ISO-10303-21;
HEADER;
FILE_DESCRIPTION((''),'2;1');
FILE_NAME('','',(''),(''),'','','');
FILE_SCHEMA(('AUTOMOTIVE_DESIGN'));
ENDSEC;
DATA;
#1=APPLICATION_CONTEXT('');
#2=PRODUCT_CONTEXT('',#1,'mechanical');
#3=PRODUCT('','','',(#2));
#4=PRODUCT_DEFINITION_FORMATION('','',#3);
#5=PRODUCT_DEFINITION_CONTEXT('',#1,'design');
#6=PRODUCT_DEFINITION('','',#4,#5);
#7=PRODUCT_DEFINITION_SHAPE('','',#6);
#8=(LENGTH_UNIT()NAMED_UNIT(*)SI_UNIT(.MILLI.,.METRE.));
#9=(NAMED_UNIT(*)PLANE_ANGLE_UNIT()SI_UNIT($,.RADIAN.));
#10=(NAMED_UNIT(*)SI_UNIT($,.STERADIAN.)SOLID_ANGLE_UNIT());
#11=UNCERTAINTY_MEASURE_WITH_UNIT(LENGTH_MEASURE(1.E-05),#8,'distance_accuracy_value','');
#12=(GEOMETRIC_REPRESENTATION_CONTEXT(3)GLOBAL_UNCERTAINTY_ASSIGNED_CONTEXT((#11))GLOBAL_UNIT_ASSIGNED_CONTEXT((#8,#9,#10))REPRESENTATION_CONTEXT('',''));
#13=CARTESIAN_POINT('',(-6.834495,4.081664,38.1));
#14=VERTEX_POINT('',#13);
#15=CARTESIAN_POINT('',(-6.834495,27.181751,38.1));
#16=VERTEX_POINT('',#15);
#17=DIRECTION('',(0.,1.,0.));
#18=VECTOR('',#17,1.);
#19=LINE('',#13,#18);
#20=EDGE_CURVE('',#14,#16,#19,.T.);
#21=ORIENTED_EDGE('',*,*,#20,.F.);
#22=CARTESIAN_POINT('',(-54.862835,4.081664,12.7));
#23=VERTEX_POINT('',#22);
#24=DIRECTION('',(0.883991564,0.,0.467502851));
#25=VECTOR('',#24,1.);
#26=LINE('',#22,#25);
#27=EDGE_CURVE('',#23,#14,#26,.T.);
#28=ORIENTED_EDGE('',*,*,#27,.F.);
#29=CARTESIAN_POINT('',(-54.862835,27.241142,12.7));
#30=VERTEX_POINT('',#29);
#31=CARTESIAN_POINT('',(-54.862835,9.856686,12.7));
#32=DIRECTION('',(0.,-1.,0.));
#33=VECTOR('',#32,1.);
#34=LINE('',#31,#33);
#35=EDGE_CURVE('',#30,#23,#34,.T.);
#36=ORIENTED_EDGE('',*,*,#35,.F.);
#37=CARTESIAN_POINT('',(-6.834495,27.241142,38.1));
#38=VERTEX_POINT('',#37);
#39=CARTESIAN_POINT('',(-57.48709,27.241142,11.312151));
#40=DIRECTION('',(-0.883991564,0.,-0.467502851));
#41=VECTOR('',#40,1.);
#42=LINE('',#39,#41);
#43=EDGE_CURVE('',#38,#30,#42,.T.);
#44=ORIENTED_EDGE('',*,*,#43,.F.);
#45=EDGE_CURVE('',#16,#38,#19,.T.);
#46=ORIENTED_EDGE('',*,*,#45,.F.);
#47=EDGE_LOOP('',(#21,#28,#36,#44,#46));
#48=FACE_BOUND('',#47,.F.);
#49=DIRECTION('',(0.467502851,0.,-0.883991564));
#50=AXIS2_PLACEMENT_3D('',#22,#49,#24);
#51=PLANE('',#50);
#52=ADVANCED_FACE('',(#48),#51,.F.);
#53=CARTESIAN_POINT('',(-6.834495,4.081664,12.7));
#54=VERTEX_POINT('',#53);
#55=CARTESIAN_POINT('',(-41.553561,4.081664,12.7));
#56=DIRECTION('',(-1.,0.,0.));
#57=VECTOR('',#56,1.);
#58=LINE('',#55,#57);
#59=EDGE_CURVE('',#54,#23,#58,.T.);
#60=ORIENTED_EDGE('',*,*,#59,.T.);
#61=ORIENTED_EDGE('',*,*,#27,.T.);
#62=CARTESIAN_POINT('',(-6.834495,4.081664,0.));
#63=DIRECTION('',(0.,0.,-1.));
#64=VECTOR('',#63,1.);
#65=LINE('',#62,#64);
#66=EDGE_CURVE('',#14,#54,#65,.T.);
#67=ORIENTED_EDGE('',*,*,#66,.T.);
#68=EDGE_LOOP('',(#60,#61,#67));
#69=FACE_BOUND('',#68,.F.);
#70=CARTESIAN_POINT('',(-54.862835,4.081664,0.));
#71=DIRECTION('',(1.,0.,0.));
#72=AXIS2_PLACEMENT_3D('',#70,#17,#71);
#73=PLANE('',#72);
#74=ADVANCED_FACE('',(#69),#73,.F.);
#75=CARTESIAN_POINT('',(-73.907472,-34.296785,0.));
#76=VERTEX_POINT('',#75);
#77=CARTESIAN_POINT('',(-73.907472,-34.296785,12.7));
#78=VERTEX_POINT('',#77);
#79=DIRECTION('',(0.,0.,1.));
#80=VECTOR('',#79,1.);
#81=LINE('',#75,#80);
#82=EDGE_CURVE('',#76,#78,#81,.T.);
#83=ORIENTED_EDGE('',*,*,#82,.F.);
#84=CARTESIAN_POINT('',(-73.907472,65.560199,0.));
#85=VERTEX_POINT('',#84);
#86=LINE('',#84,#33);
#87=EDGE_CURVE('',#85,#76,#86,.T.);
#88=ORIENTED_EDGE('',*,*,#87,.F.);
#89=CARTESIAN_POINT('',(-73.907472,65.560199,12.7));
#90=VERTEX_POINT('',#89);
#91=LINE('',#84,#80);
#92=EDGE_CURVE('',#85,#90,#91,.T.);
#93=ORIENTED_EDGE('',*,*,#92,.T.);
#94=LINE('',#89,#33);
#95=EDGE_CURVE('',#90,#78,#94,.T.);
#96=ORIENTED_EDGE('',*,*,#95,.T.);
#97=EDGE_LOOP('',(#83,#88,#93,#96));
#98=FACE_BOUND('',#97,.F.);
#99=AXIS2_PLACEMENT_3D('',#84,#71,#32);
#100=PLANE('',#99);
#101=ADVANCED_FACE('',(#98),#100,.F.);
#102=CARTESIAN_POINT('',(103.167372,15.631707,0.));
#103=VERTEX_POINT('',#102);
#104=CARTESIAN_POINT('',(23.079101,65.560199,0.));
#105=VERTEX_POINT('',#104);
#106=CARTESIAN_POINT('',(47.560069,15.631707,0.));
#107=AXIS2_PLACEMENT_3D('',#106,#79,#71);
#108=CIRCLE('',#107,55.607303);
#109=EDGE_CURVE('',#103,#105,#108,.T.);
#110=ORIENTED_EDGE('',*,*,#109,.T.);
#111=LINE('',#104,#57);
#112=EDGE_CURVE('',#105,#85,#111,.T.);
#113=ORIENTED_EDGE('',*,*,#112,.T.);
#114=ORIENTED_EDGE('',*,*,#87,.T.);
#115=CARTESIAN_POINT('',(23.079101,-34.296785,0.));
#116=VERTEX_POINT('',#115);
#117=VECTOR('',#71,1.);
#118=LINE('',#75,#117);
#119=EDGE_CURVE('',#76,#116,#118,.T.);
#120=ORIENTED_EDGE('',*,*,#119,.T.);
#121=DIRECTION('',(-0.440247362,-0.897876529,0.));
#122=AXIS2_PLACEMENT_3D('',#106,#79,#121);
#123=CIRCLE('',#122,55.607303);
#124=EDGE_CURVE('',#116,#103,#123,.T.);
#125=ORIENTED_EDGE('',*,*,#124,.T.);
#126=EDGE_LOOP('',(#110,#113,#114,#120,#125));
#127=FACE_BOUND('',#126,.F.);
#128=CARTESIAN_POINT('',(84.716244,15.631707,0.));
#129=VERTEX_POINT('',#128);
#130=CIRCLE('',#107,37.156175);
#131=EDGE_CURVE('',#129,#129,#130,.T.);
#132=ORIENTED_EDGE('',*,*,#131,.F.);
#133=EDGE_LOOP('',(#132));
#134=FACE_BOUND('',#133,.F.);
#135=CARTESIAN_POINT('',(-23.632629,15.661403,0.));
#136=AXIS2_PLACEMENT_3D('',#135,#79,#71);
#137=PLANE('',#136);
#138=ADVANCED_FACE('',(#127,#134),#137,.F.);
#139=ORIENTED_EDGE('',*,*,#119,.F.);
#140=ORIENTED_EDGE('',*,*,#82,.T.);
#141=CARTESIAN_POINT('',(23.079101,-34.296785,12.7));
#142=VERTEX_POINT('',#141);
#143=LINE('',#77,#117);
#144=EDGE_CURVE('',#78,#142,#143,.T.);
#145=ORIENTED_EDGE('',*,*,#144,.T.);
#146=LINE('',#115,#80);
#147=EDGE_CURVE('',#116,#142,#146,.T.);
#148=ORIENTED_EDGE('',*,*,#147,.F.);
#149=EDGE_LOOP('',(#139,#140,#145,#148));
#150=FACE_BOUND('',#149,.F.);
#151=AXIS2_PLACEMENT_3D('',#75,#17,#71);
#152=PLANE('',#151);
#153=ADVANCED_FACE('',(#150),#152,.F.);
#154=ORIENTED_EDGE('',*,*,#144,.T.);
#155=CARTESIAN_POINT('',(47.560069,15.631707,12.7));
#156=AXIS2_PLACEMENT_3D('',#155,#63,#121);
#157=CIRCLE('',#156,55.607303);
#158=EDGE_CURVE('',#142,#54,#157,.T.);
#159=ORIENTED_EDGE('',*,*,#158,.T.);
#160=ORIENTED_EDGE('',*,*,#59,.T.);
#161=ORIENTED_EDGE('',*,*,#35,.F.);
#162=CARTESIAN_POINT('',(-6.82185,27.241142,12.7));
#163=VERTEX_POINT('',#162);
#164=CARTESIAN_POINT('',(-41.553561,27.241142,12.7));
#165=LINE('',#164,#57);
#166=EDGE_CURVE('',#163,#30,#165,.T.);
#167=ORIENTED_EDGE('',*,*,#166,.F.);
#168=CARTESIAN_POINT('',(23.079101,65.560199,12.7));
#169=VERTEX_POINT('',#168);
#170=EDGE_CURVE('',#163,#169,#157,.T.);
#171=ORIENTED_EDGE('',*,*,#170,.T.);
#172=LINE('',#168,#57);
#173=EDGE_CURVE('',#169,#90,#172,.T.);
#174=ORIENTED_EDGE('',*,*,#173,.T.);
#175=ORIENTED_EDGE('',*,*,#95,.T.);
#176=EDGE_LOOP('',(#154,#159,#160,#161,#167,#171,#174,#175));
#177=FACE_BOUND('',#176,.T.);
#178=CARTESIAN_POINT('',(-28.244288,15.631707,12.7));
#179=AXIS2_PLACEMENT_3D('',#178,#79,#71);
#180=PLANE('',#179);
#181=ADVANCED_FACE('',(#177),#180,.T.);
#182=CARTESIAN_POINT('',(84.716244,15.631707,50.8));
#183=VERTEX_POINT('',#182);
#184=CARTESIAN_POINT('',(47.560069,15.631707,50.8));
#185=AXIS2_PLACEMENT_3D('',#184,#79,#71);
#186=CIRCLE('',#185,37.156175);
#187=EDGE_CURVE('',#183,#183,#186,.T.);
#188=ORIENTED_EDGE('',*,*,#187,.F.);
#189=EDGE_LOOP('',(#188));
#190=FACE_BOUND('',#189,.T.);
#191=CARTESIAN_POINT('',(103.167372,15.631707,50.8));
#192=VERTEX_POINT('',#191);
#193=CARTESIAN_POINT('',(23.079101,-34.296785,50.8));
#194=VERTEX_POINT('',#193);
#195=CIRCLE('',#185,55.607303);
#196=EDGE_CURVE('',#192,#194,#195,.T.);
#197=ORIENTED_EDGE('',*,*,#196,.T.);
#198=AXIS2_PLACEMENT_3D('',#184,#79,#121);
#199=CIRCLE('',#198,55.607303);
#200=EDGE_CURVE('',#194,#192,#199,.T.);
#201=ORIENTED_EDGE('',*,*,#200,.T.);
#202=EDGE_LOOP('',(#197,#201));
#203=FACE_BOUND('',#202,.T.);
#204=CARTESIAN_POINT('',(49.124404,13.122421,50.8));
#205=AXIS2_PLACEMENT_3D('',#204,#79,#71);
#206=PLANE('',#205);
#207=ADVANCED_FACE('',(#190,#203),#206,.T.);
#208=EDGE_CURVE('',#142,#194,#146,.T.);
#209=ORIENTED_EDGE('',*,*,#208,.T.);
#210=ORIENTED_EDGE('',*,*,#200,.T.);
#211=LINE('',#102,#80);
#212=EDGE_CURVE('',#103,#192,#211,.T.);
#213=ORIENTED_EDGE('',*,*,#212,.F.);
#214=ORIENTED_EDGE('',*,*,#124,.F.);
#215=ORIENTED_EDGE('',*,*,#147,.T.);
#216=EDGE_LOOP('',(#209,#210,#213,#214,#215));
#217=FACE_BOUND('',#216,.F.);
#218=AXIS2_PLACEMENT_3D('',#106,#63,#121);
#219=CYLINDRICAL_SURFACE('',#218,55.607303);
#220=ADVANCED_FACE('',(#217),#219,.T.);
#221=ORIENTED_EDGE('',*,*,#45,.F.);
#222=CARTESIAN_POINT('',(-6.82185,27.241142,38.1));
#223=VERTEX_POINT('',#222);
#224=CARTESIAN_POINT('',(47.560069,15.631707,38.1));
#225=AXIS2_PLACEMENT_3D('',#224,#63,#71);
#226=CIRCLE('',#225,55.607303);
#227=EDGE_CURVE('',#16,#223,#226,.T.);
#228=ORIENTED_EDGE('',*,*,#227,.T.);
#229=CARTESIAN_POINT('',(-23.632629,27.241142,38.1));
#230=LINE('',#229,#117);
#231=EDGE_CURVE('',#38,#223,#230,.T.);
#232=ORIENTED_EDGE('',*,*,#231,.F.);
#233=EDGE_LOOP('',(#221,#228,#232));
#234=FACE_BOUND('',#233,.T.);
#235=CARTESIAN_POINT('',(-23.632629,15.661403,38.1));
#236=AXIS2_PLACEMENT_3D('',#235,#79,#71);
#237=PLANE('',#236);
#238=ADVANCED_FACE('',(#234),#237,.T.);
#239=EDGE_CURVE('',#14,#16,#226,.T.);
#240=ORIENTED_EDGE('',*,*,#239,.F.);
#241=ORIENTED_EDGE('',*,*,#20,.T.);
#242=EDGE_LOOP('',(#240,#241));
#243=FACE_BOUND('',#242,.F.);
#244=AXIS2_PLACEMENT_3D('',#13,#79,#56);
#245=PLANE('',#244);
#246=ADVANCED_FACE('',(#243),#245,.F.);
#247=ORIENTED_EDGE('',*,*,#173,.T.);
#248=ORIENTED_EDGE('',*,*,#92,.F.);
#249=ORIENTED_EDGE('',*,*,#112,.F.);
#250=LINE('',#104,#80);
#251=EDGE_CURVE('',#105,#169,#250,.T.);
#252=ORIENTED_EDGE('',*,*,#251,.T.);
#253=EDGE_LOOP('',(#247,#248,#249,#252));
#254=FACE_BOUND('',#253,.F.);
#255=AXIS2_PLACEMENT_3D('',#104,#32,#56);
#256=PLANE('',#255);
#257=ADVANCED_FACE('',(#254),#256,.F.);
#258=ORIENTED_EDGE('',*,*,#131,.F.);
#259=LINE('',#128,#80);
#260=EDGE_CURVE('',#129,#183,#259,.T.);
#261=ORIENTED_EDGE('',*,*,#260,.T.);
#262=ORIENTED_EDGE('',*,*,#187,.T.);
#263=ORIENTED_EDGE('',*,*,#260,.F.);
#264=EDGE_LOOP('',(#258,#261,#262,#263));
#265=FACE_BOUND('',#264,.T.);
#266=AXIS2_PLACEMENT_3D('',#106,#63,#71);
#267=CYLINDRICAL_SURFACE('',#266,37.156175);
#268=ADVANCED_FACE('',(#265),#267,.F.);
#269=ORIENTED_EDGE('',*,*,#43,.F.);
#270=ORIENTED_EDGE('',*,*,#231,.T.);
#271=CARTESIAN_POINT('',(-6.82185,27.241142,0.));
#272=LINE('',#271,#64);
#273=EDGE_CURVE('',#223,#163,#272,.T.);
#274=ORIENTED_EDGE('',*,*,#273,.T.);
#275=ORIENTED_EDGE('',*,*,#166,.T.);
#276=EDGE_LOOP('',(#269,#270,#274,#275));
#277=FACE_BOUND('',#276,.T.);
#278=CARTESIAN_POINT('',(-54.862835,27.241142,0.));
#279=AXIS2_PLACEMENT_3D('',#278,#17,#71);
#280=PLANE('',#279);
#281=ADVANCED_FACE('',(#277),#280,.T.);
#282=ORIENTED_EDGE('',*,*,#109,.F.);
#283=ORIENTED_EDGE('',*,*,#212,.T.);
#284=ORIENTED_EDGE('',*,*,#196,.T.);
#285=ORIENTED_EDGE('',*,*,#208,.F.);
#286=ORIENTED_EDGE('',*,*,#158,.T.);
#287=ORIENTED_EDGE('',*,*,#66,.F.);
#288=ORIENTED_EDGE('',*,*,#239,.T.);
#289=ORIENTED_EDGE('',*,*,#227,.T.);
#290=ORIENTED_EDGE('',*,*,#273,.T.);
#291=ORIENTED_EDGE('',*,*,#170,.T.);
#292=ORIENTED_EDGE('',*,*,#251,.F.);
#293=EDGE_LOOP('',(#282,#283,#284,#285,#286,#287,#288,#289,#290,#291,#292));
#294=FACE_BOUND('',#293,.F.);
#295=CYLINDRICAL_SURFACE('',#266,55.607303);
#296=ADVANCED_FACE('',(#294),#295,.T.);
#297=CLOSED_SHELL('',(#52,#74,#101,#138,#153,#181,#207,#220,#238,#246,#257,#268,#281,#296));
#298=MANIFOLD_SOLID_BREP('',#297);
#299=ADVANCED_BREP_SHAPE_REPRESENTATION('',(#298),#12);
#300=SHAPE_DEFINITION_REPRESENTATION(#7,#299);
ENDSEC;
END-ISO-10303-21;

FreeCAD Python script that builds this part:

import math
import FreeCAD as App
import Part
import Sketcher
from FreeCAD import Vector
Q = App.Units.Quantity

doc = App.newDocument("Part")
params = doc.addObject("Spreadsheet::Sheet", "Params")
for row, (alias, value) in enumerate([
    ("pad1_length", "0.5 in"),
    ("pad2_length", "2 in"),
    ("pad3_length", "1.5 in"),
    ("sketch4_height", "1 in"),
    ("pocket1_length", "1 in"),
], start=1):
    params.set(f"A{row}", alias)
    params.set(f"B{row}", "=" + value)
    params.setAlias(f"B{row}", alias)

body = doc.addObject("PartDesign::Body", "Body")

# Sketch on XY plane
sketch1 = body.newObject("Sketcher::SketchObject", "Sketch")
sketch1.AttachmentSupport = (doc.getObject("XY_Plane"), [""])
sketch1.MapMode = "FlatFace"
sketch1.addGeometry([
    Part.LineSegment(Vector(23, 66, 0), Vector(-74, 66, 0)),
    Part.LineSegment(Vector(-74, 66, 0), Vector(-74, -34, 0)),
    Part.LineSegment(Vector(-74, -34, 0), Vector(23, -34, 0)),
    Part.ArcOfCircle(Part.Circle(Vector(48, 16, 0), Vector(0, 0, 1), 56), math.radians(116), math.radians(244)),
], False)
sketch1.addConstraint([
    Sketcher.Constraint("Coincident", 0, 2, 1, 1),
    Sketcher.Constraint("Coincident", 1, 2, 2, 1),
    Sketcher.Constraint("Coincident", 2, 2, 3, 2),
    Sketcher.Constraint("Coincident", 3, 1, 0, 1),
    Sketcher.Constraint("Horizontal", 0),
    Sketcher.Constraint("Vertical", 1),
    Sketcher.Constraint("Horizontal", 2),
    Sketcher.Constraint("Vertical", 2, 2, 3, 1),
    Sketcher.Constraint("Radius", 3, Q("55.607303 mm")),
    Sketcher.Constraint("DistanceY", -1, 1, 0, 2, Q("65.560199 mm")),
    Sketcher.Constraint("DistanceX", -1, 1, 2, 2, Q("23.079101 mm")),
    Sketcher.Constraint("DistanceX", 0, 2, 0, 1, Q("96.986573 mm")),
    Sketcher.Constraint("DistanceY", 1, 2, 1, 1, Q("99.856984 mm")),
])
pad1 = body.newObject("PartDesign::Pad", "Pad")
pad1.Profile = sketch1
pad1.setExpression("Length", "Params.pad1_length")

# Sketch on XY plane
sketch2 = body.newObject("Sketcher::SketchObject", "Sketch001")
sketch2.AttachmentSupport = (doc.getObject("XY_Plane"), [""])
sketch2.MapMode = "FlatFace"
sketch2.addGeometry([
    Part.ArcOfCircle(Part.Circle(Vector(48, 16, 0), Vector(0, 0, 1), 56), math.radians(0), math.radians(244)),
    Part.ArcOfCircle(Part.Circle(Vector(48, 16, 0), Vector(0, 0, 1), 56), math.radians(-116), math.radians(0)),
    Part.Circle(Vector(48, 16, 0), Vector(0, 0, 1), 37),
], False)
sketch2.addConstraint([
    Sketcher.Constraint("Tangent", 0, 1, 1, 2),
    Sketcher.Constraint("Coincident", 1, 1, 0, 2),
    Sketcher.Constraint("Coincident", 2, 3, 0, 3),
    Sketcher.Constraint("Horizontal", 2, 3, 0, 1),
    Sketcher.Constraint("Diameter", 2, Q("74.31235 mm")),
    Sketcher.Constraint("Radius", 0, Q("55.607303 mm")),
    Sketcher.Constraint("DistanceX", -1, 1, 1, 1, Q("23.079101 mm")),
    Sketcher.Constraint("DistanceX", -1, 1, 0, 3, Q("47.560069 mm")),
    Sketcher.Constraint("DistanceY", -1, 1, 0, 3, Q("15.631707 mm")),
])
pad2 = body.newObject("PartDesign::Pad", "Pad001")
pad2.Profile = sketch2
pad2.setExpression("Length", "Params.pad2_length")

# Sketch on XY plane
sketch3 = body.newObject("Sketcher::SketchObject", "Sketch002")
sketch3.AttachmentSupport = (doc.getObject("XY_Plane"), [""])
sketch3.MapMode = "FlatFace"
sketch3.addGeometry([
    Part.LineSegment(Vector(-55, 27, 0), Vector(-55, 4, 0)),
    Part.LineSegment(Vector(-55, 4, 0), Vector(8, 4, 0)),
    Part.LineSegment(Vector(8, 4, 0), Vector(8, 27, 0)),
    Part.LineSegment(Vector(8, 27, 0), Vector(-55, 27, 0)),
], False)
sketch3.addConstraint([
    Sketcher.Constraint("Coincident", 0, 2, 1, 1),
    Sketcher.Constraint("Coincident", 1, 2, 2, 1),
    Sketcher.Constraint("Coincident", 2, 2, 3, 1),
    Sketcher.Constraint("Coincident", 3, 2, 0, 1),
    Sketcher.Constraint("Vertical", 0),
    Sketcher.Constraint("Horizontal", 1),
    Sketcher.Constraint("Vertical", 2),
    Sketcher.Constraint("Horizontal", 3),
    Sketcher.Constraint("DistanceX", 1, 1, 1, 2, Q("62.460411 mm")),
    Sketcher.Constraint("DistanceY", 0, 2, 0, 1, Q("23.159479 mm")),
    Sketcher.Constraint("DistanceX", 0, 2, -1, 1, Q("54.862835 mm")),
    Sketcher.Constraint("DistanceY", -1, 1, 0, 2, Q("4.081664 mm")),
])
pad3 = body.newObject("PartDesign::Pad", "Pad002")
pad3.Profile = sketch3
pad3.setExpression("Length", "Params.pad3_length")

# Sketch on XZ plane
sketch4 = body.newObject("Sketcher::SketchObject", "Sketch003")
sketch4.AttachmentSupport = (doc.getObject("XZ_Plane"), [""])
sketch4.MapMode = "FlatFace"
sketch4.AttachmentOffset = App.Placement(Vector(0, 0, -4.081664), App.Rotation())
sketch4.addGeometry([
    Part.LineSegment(Vector(-55, 38, 0), Vector(-55, 13, 0)),
    Part.LineSegment(Vector(-55, 13, 0), Vector(-7, 38, 0)),
    Part.LineSegment(Vector(-7, 38, 0), Vector(-55, 38, 0)),
], False)
sketch4.addConstraint([
    Sketcher.Constraint("Coincident", 0, 2, 1, 1),
    Sketcher.Constraint("Coincident", 1, 2, 2, 1),
    Sketcher.Constraint("Coincident", 2, 2, 0, 1),
    Sketcher.Constraint("Vertical", 0),
    Sketcher.Constraint("Horizontal", 2),
    Sketcher.Constraint("DistanceY", 0, 2, 0, 1, Q("1 in")),
    Sketcher.Constraint("DistanceY", -1, 1, 0, 2, Q("0.5 in")),
    Sketcher.Constraint("DistanceX", 2, 2, 2, 1, Q("48.02834 mm")),
    Sketcher.Constraint("DistanceX", 0, 2, -1, 1, Q("54.862835 mm")),
])
sketch4.setExpression("Constraints[5]", "Params.sketch4_height")
pocket1 = body.newObject("PartDesign::Pocket", "Pocket")
pocket1.Profile = sketch4
pocket1.setExpression("Length", "Params.pocket1_length")

doc.recompute()
